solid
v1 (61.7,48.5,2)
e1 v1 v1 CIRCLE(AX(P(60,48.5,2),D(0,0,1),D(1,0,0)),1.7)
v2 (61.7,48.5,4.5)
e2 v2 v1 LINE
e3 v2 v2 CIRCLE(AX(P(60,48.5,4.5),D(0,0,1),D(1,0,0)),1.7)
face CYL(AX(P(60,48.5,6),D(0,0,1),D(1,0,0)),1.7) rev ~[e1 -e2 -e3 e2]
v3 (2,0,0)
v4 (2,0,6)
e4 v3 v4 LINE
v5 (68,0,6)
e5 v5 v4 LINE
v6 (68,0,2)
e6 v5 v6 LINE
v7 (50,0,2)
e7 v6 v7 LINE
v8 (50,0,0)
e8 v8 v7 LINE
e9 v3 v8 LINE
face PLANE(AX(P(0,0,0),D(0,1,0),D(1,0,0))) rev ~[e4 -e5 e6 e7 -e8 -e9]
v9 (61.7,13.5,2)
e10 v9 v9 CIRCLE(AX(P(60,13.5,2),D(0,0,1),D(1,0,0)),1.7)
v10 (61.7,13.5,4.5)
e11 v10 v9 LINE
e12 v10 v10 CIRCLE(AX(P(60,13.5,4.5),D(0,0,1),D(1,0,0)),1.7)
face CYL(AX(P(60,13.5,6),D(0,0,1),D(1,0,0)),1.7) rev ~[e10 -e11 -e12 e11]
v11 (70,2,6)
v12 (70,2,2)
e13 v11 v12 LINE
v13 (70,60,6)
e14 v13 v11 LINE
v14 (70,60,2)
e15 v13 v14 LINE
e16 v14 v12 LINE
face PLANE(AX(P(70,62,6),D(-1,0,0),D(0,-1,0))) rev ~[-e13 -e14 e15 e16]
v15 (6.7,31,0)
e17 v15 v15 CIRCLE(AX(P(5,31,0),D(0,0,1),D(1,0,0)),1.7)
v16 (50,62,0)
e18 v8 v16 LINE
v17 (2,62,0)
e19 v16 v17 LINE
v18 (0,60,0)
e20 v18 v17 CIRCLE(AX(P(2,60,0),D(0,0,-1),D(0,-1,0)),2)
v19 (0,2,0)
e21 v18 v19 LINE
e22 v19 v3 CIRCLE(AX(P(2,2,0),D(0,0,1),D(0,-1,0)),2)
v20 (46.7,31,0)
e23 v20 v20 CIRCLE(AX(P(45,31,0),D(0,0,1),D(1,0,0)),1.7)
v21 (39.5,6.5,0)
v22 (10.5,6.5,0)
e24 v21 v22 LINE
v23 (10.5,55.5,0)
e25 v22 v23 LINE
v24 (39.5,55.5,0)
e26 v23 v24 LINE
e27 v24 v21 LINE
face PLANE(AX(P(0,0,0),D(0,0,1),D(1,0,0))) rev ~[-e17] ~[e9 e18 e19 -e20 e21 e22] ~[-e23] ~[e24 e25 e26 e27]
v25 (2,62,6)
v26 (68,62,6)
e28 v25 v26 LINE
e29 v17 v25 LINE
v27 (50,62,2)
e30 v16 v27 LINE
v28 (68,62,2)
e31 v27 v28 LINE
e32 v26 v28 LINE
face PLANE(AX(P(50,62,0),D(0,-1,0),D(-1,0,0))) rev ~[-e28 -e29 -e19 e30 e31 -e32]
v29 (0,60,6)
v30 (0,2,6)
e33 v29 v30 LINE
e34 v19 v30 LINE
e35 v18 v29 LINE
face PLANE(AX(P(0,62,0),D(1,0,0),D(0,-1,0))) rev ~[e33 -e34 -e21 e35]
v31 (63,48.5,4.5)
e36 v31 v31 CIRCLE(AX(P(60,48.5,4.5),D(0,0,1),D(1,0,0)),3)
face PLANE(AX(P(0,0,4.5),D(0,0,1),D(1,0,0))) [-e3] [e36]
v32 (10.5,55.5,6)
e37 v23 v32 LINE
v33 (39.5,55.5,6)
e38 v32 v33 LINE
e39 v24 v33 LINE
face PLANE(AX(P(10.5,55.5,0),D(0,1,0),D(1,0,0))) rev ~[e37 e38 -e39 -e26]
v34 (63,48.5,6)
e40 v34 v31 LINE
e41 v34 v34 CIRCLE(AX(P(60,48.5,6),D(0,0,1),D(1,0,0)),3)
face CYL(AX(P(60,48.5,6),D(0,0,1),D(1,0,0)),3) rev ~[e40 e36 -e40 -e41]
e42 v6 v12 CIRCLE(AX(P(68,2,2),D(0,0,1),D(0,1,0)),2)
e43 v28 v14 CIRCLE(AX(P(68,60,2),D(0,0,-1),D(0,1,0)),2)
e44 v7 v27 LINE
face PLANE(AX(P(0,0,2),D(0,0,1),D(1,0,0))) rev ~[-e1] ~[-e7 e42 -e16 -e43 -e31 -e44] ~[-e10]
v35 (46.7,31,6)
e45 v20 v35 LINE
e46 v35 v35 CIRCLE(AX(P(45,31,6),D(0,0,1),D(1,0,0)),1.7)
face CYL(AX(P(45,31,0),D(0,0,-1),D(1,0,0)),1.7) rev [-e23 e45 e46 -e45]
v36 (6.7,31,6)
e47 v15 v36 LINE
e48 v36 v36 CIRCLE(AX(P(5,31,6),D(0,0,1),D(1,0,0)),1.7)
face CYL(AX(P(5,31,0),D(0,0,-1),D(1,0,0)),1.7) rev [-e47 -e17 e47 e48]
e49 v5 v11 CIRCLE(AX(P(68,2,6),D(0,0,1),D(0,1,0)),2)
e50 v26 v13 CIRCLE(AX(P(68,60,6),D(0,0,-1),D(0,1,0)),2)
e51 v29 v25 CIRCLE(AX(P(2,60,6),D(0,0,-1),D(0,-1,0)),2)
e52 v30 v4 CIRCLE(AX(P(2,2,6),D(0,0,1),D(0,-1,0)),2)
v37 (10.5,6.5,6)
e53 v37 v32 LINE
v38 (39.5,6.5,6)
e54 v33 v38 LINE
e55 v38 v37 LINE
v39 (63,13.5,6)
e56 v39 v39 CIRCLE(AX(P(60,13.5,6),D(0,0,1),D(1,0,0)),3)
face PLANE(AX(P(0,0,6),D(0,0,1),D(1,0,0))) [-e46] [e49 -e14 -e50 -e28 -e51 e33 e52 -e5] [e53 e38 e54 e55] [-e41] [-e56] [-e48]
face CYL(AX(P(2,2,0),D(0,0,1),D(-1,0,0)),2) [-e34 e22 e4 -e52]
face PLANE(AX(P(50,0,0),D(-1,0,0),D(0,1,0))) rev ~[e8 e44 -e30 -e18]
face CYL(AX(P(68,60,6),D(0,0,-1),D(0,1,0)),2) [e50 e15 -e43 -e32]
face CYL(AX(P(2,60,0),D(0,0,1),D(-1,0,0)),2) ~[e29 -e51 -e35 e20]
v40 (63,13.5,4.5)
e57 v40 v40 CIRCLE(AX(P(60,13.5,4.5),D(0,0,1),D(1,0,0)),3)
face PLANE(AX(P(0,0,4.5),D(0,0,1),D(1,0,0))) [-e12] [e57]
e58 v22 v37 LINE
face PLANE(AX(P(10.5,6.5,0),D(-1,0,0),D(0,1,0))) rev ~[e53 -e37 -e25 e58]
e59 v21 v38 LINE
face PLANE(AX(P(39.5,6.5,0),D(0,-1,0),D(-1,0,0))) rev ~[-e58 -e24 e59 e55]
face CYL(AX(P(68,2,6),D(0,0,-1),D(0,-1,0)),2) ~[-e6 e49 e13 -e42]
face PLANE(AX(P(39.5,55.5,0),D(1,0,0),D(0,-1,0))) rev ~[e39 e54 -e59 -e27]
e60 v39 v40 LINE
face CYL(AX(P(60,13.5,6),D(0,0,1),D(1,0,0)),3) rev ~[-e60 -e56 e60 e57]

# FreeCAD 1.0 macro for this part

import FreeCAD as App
import Part
import Sketcher

V = App.Vector
Q = App.Units.Quantity


def edges_at(feature, points):
    """Names of the edges that pass closest to the given points."""
    edges = feature.Shape.Edges
    near = lambda p: min(range(len(edges)), key=lambda i: edges[i].distToShape(Part.Vertex(*p))[0])
    return sorted({f"Edge{near(p) + 1}" for p in points})


def add_polygon(sketch, points):
    """Adds a closed chain of lines whose ends are joined by coincident constraints."""
    first, n = sketch.GeometryCount, len(points)
    for a, b in zip(points, points[1:] + points[:1]):
        sketch.addGeometry(Part.LineSegment(App.Vector(*a, 0), App.Vector(*b, 0)), False)
    for i in range(n):
        sketch.addConstraint(Sketcher.Constraint("Coincident", first + i, 2, first + (i + 1) % n, 1))

doc = App.newDocument("Part")
params = doc.addObject("Spreadsheet::Sheet", "Params")
for row, (alias, value) in enumerate([
    ("sketch1_diameter", "3.4 mm"),
    ("sketch1_width", "29 mm"),
    ("sketch1_height", "62 mm"),
    ("sketch1_height2", "49 mm"),
    ("pad1_length", "6 mm"),
    ("sketch2_diameter", "3.4 mm"),
    ("sketch2_width", "20 mm"),
    ("sketch2_height", "62 mm"),
    ("pad2_length", "4 mm"),
    ("sketch3_diameter", "6 mm"),
    ("sketch3_diameter2", "3.4 mm"),
    ("pocket1_length", "1.5 mm"),
    ("fillet_radius", "2 mm"),
], start=1):
    params.set(f"A{row}", alias)
    params.set(f"B{row}", "=" + value)
    params.setAlias(f"B{row}", alias)

body = doc.addObject("PartDesign::Body", "Body")

sketch1 = body.newObject("Sketcher::SketchObject", "Sketch")
sketch1.AttachmentSupport = (doc.getObject("XY_Plane"), [""])
sketch1.MapMode = "FlatFace"
add_polygon(sketch1, [(0, 62), (0, 0), (50, 0), (50, 62)])
sketch1.addGeometry(Part.Circle(V(5, 31, 0), V(0, 0, 1), 1.7), False)
add_polygon(sketch1, [(10.5, 6.5), (10.5, 55.5), (39.5, 55.5), (39.5, 6.5)])
sketch1.addGeometry(Part.Circle(V(45, 31, 0), V(0, 0, 1), 1.7), False)
sketch1.addConstraint([
    Sketcher.Constraint("Vertical", 0),
    Sketcher.Constraint("Horizontal", 1),
    Sketcher.Constraint("Vertical", 2),
    Sketcher.Constraint("Horizontal", 3),
    Sketcher.Constraint("Vertical", 5),
    Sketcher.Constraint("Horizontal", 6),
    Sketcher.Constraint("Vertical", 7),
    Sketcher.Constraint("Horizontal", 8),
    Sketcher.Constraint("Coincident", 0, 2, -1, 1),
    Sketcher.Constraint("Equal", 4, 9),
    Sketcher.Constraint("Horizontal", 4, 3, 9, 3),
    Sketcher.Constraint("Diameter", 4, Q("3.4 mm")),
    Sketcher.Constraint("DistanceX", 6, 1, 6, 2, Q("29 mm")),
    Sketcher.Constraint("DistanceY", 0, 2, 0, 1, Q("62 mm")),
    Sketcher.Constraint("DistanceY", 5, 1, 5, 2, Q("49 mm")),
    Sketcher.Constraint("DistanceX", -1, 1, 4, 3, Q("5 mm")),
    Sketcher.Constraint("DistanceX", 4, 3, 9, 3, Q("40 mm")),
    Sketcher.Constraint("DistanceX", 9, 3, 1, 2, Q("5 mm")),
    Sketcher.Constraint("DistanceY", -1, 1, 4, 3, Q("31 mm")),
    Sketcher.Constraint("DistanceX", -1, 1, 5, 2, Q("10.5 mm")),
    Sketcher.Constraint("DistanceY", -1, 1, 5, 2, Q("55.5 mm")),
])
sketch1.setExpression("Constraints[19]", "Params.sketch1_diameter")
sketch1.setExpression("Constraints[20]", "Params.sketch1_width")
sketch1.setExpression("Constraints[21]", "Params.sketch1_height")
sketch1.setExpression("Constraints[22]", "Params.sketch1_height2")
pad1 = body.newObject("PartDesign::Pad", "Pad")
pad1.Profile = sketch1
pad1.setExpression("Length", "Params.pad1_length")

sketch2 = body.newObject("Sketcher::SketchObject", "Sketch001")
sketch2.AttachmentSupport = (doc.getObject("XY_Plane"), [""])
sketch2.MapMode = "FlatFace"
sketch2.AttachmentOffset = App.Placement(V(0, 0, 6), App.Rotation())
add_polygon(sketch2, [(70, 62), (50, 62), (50, 0), (70, 0)])
sketch2.addGeometry(Part.Circle(V(60, 13.5, 0), V(0, 0, 1), 1.7), False)
sketch2.addGeometry(Part.Circle(V(60, 48.5, 0), V(0, 0, 1), 1.7), False)
sketch2.addConstraint([
    Sketcher.Constraint("Horizontal", 0),
    Sketcher.Constraint("Vertical", 1),
    Sketcher.Constraint("Horizontal", 2),
    Sketcher.Constraint("Vertical", 3),
    Sketcher.Constraint("Equal", 4, 5),
    Sketcher.Constraint("PointOnObject", 1, 2, -1),
    Sketcher.Constraint("Vertical", 4, 3, 5, 3),
    Sketcher.Constraint("Diameter", 4, Q("3.4 mm")),
    Sketcher.Constraint("DistanceX", 0, 2, 0, 1, Q("20 mm")),
    Sketcher.Constraint("DistanceY", 4, 3, 5, 3, Q("35 mm")),
    Sketcher.Constraint("DistanceY", 1, 2, 1, 1, Q("62 mm")),
    Sketcher.Constraint("DistanceX", -1, 1, 4, 3, Q("60 mm")),
    Sketcher.Constraint("DistanceX", -1, 1, 0, 2, Q("50 mm")),
    Sketcher.Constraint("DistanceY", -1, 1, 4, 3, Q("13.5 mm")),
])
sketch2.setExpression("Constraints[11]", "Params.sketch2_diameter")
sketch2.setExpression("Constraints[12]", "Params.sketch2_width")
sketch2.setExpression("Constraints[14]", "Params.sketch2_height")
pad2 = body.newObject("PartDesign::Pad", "Pad001")
pad2.Profile = sketch2
pad2.setExpression("Length", "Params.pad2_length")
pad2.Reversed = True

sketch3 = body.newObject("Sketcher::SketchObject", "Sketch002")
sketch3.AttachmentSupport = (doc.getObject("XY_Plane"), [""])
sketch3.MapMode = "FlatFace"
sketch3.AttachmentOffset = App.Placement(V(0, 0, 6), App.Rotation())
sketch3.addGeometry([
    Part.Circle(V(60, 48.5, 0), V(0, 0, 1), 3),
    Part.Circle(V(60, 48.5, 0), V(0, 0, 1), 1.7),
    Part.Circle(V(60, 13.5, 0), V(0, 0, 1), 3),
    Part.Circle(V(60, 13.5, 0), V(0, 0, 1), 1.7),
], False)
sketch3.addConstraint([
    Sketcher.Constraint("Coincident", 1, 3, 0, 3),
    Sketcher.Constraint("Coincident", 3, 3, 2, 3),
    Sketcher.Constraint("Equal", 0, 2),
    Sketcher.Constraint("Equal", 1, 3),
    Sketcher.Constraint("Vertical", 1, 3, 2, 3),
    Sketcher.Constraint("Diameter", 0, Q("6 mm")),
    Sketcher.Constraint("Diameter", 1, Q("3.4 mm")),
    Sketcher.Constraint("DistanceX", -1, 1, 0, 3, Q("60 mm")),
    Sketcher.Constraint("DistanceY", 2, 3, 0, 3, Q("35 mm")),
    Sketcher.Constraint("DistanceY", -1, 1, 0, 3, Q("48.5 mm")),
])
sketch3.setExpression("Constraints[5]", "Params.sketch3_diameter")
sketch3.setExpression("Constraints[6]", "Params.sketch3_diameter2")
pocket1 = body.newObject("PartDesign::Pocket", "Pocket")
pocket1.Profile = sketch3
pocket1.setExpression("Length", "Params.pocket1_length")
doc.recompute()

fillet = body.newObject("PartDesign::Fillet", "Fillet")
fillet.Base = (pocket1, edges_at(pocket1, [
    (0, 62, 3),
    (0, 0, 3),
    (70, 0, 4),
    (70, 62, 4),
]))
fillet.setExpression("Radius", "Params.fillet_radius")

doc.recompute()
